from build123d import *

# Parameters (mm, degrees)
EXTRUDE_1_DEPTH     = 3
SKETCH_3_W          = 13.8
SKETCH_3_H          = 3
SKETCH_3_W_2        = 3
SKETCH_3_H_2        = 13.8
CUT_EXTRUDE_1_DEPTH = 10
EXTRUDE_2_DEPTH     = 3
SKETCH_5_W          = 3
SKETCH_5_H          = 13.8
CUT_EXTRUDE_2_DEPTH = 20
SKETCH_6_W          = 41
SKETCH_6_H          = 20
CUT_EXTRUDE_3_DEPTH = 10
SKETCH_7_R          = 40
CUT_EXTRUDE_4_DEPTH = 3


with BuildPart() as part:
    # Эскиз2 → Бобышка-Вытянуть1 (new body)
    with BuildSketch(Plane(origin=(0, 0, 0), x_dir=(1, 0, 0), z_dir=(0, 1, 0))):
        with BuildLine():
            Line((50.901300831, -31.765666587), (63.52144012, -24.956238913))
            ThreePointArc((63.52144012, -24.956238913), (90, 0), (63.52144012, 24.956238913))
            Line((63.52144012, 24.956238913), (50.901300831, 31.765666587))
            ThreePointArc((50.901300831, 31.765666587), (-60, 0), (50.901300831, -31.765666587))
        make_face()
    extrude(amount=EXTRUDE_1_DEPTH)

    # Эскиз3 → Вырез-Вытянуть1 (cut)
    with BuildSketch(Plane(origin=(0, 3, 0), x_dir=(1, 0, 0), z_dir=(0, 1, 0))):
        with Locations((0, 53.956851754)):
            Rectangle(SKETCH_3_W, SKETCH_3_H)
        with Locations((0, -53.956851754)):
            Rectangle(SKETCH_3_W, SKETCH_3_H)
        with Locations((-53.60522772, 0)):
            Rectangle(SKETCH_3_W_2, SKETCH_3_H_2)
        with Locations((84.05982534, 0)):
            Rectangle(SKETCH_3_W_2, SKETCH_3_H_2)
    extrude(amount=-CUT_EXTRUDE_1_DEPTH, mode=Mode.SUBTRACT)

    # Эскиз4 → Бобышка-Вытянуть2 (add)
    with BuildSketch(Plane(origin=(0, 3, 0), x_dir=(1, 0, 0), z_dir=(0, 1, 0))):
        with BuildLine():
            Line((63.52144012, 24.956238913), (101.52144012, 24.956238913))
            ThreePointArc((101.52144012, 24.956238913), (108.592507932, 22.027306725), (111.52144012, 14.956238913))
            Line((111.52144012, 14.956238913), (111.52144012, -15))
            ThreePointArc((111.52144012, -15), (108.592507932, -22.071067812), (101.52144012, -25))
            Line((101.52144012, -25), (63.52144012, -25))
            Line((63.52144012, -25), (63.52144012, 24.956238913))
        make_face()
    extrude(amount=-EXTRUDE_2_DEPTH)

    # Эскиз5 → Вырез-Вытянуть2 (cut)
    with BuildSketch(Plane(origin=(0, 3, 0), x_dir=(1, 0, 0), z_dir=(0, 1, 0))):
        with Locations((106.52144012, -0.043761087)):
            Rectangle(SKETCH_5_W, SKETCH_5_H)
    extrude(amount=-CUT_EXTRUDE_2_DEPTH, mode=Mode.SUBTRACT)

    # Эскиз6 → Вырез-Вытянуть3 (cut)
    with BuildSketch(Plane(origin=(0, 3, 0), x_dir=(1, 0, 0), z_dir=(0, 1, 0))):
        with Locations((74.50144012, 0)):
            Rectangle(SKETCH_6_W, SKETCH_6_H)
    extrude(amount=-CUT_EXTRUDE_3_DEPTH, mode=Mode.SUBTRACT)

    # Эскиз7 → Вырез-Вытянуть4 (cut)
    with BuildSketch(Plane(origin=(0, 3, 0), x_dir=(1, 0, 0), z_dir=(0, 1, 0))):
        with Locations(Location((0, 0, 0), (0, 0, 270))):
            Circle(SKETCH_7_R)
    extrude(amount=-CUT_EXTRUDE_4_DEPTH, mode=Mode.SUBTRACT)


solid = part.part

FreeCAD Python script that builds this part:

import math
import FreeCAD as App
import Part
import Sketcher

V = App.Vector
Q = App.Units.Quantity

doc = App.newDocument("Part")
body = doc.addObject("PartDesign::Body", "Body")

sketch1 = body.newObject("Sketcher::SketchObject", "Sketch")
sketch1.AttachmentSupport = (doc.getObject("XZ_Plane"), [""])
sketch1.MapMode = "FlatFace"
sketch1.addGeometry([
    Part.LineSegment(V(51, 32, 0), V(64, 25, 0)),
    Part.ArcOfCircle(Part.Circle(V(65, 0, 0), V(0, 0, 1), 25), math.radians(-93), math.radians(93)),
    Part.LineSegment(V(64, -25, 0), V(51, -32, 0)),
    Part.ArcOfCircle(Part.Circle(V(0, 0, 0), V(0, 0, 1), 60), math.radians(32), math.radians(328)),
], False)
sketch1.addConstraint([
    Sketcher.Constraint("Coincident", 0, 2, 1, 2),
    Sketcher.Constraint("Coincident", 1, 1, 2, 1),
    Sketcher.Constraint("Coincident", 2, 2, 3, 2),
    Sketcher.Constraint("Coincident", 3, 1, 0, 1),
    Sketcher.Constraint("Coincident", 3, 3, -1, 1),
    Sketcher.Constraint("Symmetric", 0, 2, 1, 1, -1),
    Sketcher.Constraint("Vertical", 2, 2, 3, 1),
    Sketcher.Constraint("Radius", 1, Q("25 mm")),
    Sketcher.Constraint("Radius", 3, Q("60 mm")),
    Sketcher.Constraint("DistanceX", -1, 1, 1, 3, Q("65 mm")),
    Sketcher.Constraint("DistanceX", -1, 1, 2, 2, Q("50.901301 mm")),
    Sketcher.Constraint("Distance", 0, Q("14.340022 mm")),
])
pad1 = body.newObject("PartDesign::Pad", "Pad")
pad1.Profile = sketch1
pad1.Length = 3
pad1.Reversed = True

sketch2 = body.newObject("Sketcher::SketchObject", "Sketch001")
sketch2.AttachmentSupport = (doc.getObject("XZ_Plane"), [""])
sketch2.MapMode = "FlatFace"
sketch2.AttachmentOffset = App.Placement(V(0, 0, -3), App.Rotation())
sketch2.addGeometry([
    Part.LineSegment(V(-6.9, -55.5, 0), V(-6.9, -52.5, 0)),
    Part.LineSegment(V(-6.9, -52.5, 0), V(6.9, -52.5, 0)),
    Part.LineSegment(V(6.9, -52.5, 0), V(6.9, -55.5, 0)),
    Part.LineSegment(V(6.9, -55.5, 0), V(-6.9, -55.5, 0)),
    Part.LineSegment(V(-6.9, 52.5, 0), V(-6.9, 55.5, 0)),
    Part.LineSegment(V(-6.9, 55.5, 0), V(6.9, 55.5, 0)),
    Part.LineSegment(V(6.9, 55.5, 0), V(6.9, 52.5, 0)),
    Part.LineSegment(V(6.9, 52.5, 0), V(-6.9, 52.5, 0)),
    Part.LineSegment(V(-55.1, -6.9, 0), V(-55.1, 6.9, 0)),
    Part.LineSegment(V(-55.1, 6.9, 0), V(-52.1, 6.9, 0)),
    Part.LineSegment(V(-52.1, 6.9, 0), V(-52.1, -6.9, 0)),
    Part.LineSegment(V(-52.1, -6.9, 0), V(-55.1, -6.9, 0)),
    Part.LineSegment(V(82.6, -6.9, 0), V(82.6, 6.9, 0)),
    Part.LineSegment(V(82.6, 6.9, 0), V(85.6, 6.9, 0)),
    Part.LineSegment(V(85.6, 6.9, 0), V(85.6, -6.9, 0)),
    Part.LineSegment(V(85.6, -6.9, 0), V(82.6, -6.9, 0)),
], False)
sketch2.addConstraint([
    Sketcher.Constraint("Coincident", 0, 2, 1, 1),
    Sketcher.Constraint("Coincident", 1, 2, 2, 1),
    Sketcher.Constraint("Coincident", 2, 2, 3, 1),
    Sketcher.Constraint("Coincident", 3, 2, 0, 1),
    Sketcher.Constraint("Coincident", 4, 2, 5, 1),
    Sketcher.Constraint("Coincident", 5, 2, 6, 1),
    Sketcher.Constraint("Coincident", 6, 2, 7, 1),
    Sketcher.Constraint("Coincident", 7, 2, 4, 1),
    Sketcher.Constraint("Coincident", 8, 2, 9, 1),
    Sketcher.Constraint("Coincident", 9, 2, 10, 1),
    Sketcher.Constraint("Coincident", 10, 2, 11, 1),
    Sketcher.Constraint("Coincident", 11, 2, 8, 1),
    Sketcher.Constraint("Coincident", 12, 2, 13, 1),
    Sketcher.Constraint("Coincident", 13, 2, 14, 1),
    Sketcher.Constraint("Coincident", 14, 2, 15, 1),
    Sketcher.Constraint("Coincident", 15, 2, 12, 1),
    Sketcher.Constraint("Vertical", 0),
    Sketcher.Constraint("Horizontal", 1),
    Sketcher.Constraint("Vertical", 2),
    Sketcher.Constraint("Horizontal", 3),
    Sketcher.Constraint("Vertical", 4),
    Sketcher.Constraint("Horizontal", 5),
    Sketcher.Constraint("Vertical", 6),
    Sketcher.Constraint("Horizontal", 7),
    Sketcher.Constraint("Vertical", 8),
    Sketcher.Constraint("Horizontal", 9),
    Sketcher.Constraint("Vertical", 10),
    Sketcher.Constraint("Horizontal", 11),
    Sketcher.Constraint("Vertical", 12),
    Sketcher.Constraint("Horizontal", 13),
    Sketcher.Constraint("Vertical", 14),
    Sketcher.Constraint("Horizontal", 15),
    Sketcher.Constraint("Symmetric", 2, 2, 4, 2, -1, 1),
    Sketcher.Constraint("Symmetric", 0, 2, 6, 2, -1, 1),
    Sketcher.Constraint("Horizontal", 9, 2, 12, 2),
    Sketcher.Constraint("Horizontal", 11, 2, 14, 2),
    Sketcher.Constraint("Vertical", 3, 2, 4, 2),
    Sketcher.Constraint("Equal", 11, 13),
    Sketcher.Constraint("Equal", 15, 0),
    Sketcher.Constraint("Equal", 7, 8),
    Sketcher.Constraint("DistanceX", 9, 1, 9, 2, Q("3 mm")),
    Sketcher.Constraint("DistanceX", 1, 1, 1, 2, Q("13.8 mm")),
    Sketcher.Constraint("DistanceY", -1, 1, 8, 2, Q("6.9 mm")),
    Sketcher.Constraint("DistanceY", 0, 2, -1, 1, Q("52.456852 mm")),
    Sketcher.Constraint("DistanceX", 8, 2, -1, 1, Q("55.105228 mm")),
    Sketcher.Constraint("DistanceX", -1, 1, 12, 2, Q("82.559825 mm")),
])
pocket1 = body.newObject("PartDesign::Pocket", "Pocket")
pocket1.Profile = sketch2
pocket1.Length = 10
pocket1.Reversed = True

sketch3 = body.newObject("Sketcher::SketchObject", "Sketch002")
sketch3.AttachmentSupport = (doc.getObject("XZ_Plane"), [""])
sketch3.MapMode = "FlatFace"
sketch3.AttachmentOffset = App.Placement(V(0, 0, -3), App.Rotation())
sketch3.addGeometry([
    Part.LineSegment(V(102, -25, 0), V(64, -25, 0)),
    Part.LineSegment(V(64, -25, 0), V(64, 25, 0)),
    Part.LineSegment(V(64, 25, 0), V(102, 25, 0)),
    Part.ArcOfCircle(Part.Circle(V(102, 15, 0), V(0, 0, 1), 10), math.radians(0), math.radians(90)),
    Part.LineSegment(V(112, 15, 0), V(112, -15, 0)),
    Part.ArcOfCircle(Part.Circle(V(102, -15, 0), V(0, 0, 1), 10), math.radians(-90), math.radians(0)),
], False)
sketch3.addConstraint([
    Sketcher.Constraint("Coincident", 0, 2, 1, 1),
    Sketcher.Constraint("Coincident", 1, 2, 2, 1),
    Sketcher.Constraint("Tangent", 2, 2, 3, 2),
    Sketcher.Constraint("Tangent", 3, 1, 4, 1),
    Sketcher.Constraint("Tangent", 4, 2, 5, 2),
    Sketcher.Constraint("Tangent", 5, 1, 0, 1),
    Sketcher.Constraint("Horizontal", 0),
    Sketcher.Constraint("Vertical", 1),
    Sketcher.Constraint("Horizontal", 2),
    Sketcher.Constraint("Vertical", 4),
    Sketcher.Constraint("Equal", 3, 5),
    Sketcher.Constraint("Radius", 3, Q("10 mm")),
    Sketcher.Constraint("DistanceX", 0, 2, 0, 1, Q("38 mm")),
    Sketcher.Constraint("DistanceY", -1, 1, 3, 3, Q("15 mm")),
    Sketcher.Constraint("DistanceY", 1, 1, 1, 2, Q("49.956239 mm")),
    Sketcher.Constraint("DistanceX", -1, 1, 3, 3, Q("101.52144 mm")),
])
pad2 = body.newObject("PartDesign::Pad", "Pad001")
pad2.Profile = sketch3
pad2.Length = 3

sketch4 = body.newObject("Sketcher::SketchObject", "Sketch003")
sketch4.AttachmentSupport = (doc.getObject("XZ_Plane"), [""])
sketch4.MapMode = "FlatFace"
sketch4.AttachmentOffset = App.Placement(V(0, 0, -3), App.Rotation())
sketch4.addGeometry([
    Part.LineSegment(V(105, -6.9, 0), V(105, 6.9, 0)),
    Part.LineSegment(V(105, 6.9, 0), V(108, 6.9, 0)),
    Part.LineSegment(V(108, 6.9, 0), V(108, -6.9, 0)),
    Part.LineSegment(V(108, -6.9, 0), V(105, -6.9, 0)),
], False)
sketch4.addConstraint([
    Sketcher.Constraint("Coincident", 0, 2, 1, 1),
    Sketcher.Constraint("Coincident", 1, 2, 2, 1),
    Sketcher.Constraint("Coincident", 2, 2, 3, 1),
    Sketcher.Constraint("Coincident", 3, 2, 0, 1),
    Sketcher.Constraint("Vertical", 0),
    Sketcher.Constraint("Horizontal", 1),
    Sketcher.Constraint("Vertical", 2),
    Sketcher.Constraint("Horizontal", 3),
    Sketcher.Constraint("DistanceX", 1, 1, 1, 2, Q("3 mm")),
    Sketcher.Constraint("DistanceY", 0, 1, 0, 2, Q("13.8 mm")),
    Sketcher.Constraint("DistanceX", -1, 1, 0, 2, Q("105.02144 mm")),
    Sketcher.Constraint("DistanceY", -1, 1, 0, 2, Q("6.943761 mm")),
])
pocket2 = body.newObject("PartDesign::Pocket", "Pocket001")
pocket2.Profile = sketch4
pocket2.Length = 20
pocket2.Reversed = True

sketch5 = body.newObject("Sketcher::SketchObject", "Sketch004")
sketch5.AttachmentSupport = (doc.getObject("XZ_Plane"), [""])
sketch5.MapMode = "FlatFace"
sketch5.AttachmentOffset = App.Placement(V(0, 0, -3), App.Rotation())
sketch5.addGeometry([
    Part.LineSegment(V(54, -10, 0), V(54, 10, 0)),
    Part.LineSegment(V(54, 10, 0), V(95, 10, 0)),
    Part.LineSegment(V(95, 10, 0), V(95, -10, 0)),
    Part.LineSegment(V(95, -10, 0), V(54, -10, 0)),
], False)
sketch5.addConstraint([
    Sketcher.Constraint("Coincident", 0, 2, 1, 1),
    Sketcher.Constraint("Coincident", 1, 2, 2, 1),
    Sketcher.Constraint("Coincident", 2, 2, 3, 1),
    Sketcher.Constraint("Coincident", 3, 2, 0, 1),
    Sketcher.Constraint("Vertical", 0),
    Sketcher.Constraint("Horizontal", 1),
    Sketcher.Constraint("Vertical", 2),
    Sketcher.Constraint("Horizontal", 3),
    Sketcher.Constraint("DistanceX", 1, 1, 1, 2, Q("41 mm")),
    Sketcher.Constraint("DistanceY", 0, 1, 0, 2, Q("20 mm")),
    Sketcher.Constraint("DistanceY", -1, 1, 0, 2, Q("10 mm")),
    Sketcher.Constraint("DistanceX", -1, 1, 0, 2, Q("54.00144 mm")),
])
pocket3 = body.newObject("PartDesign::Pocket", "Pocket002")
pocket3.Profile = sketch5
pocket3.Length = 10
pocket3.Reversed = True

sketch6 = body.newObject("Sketcher::SketchObject", "Sketch005")
sketch6.AttachmentSupport = (doc.getObject("XZ_Plane"), [""])
sketch6.MapMode = "FlatFace"
sketch6.AttachmentOffset = App.Placement(V(0, 0, -3), App.Rotation())
sketch6.addGeometry(Part.Circle(V(0, 0, 0), V(0, 0, 1), 40), False)
sketch6.addConstraint([
    Sketcher.Constraint("Coincident", 0, 3, -1, 1),
    Sketcher.Constraint("Diameter", 0, Q("80 mm")),
])
pocket4 = body.newObject("PartDesign::Pocket", "Pocket003")
pocket4.Profile = sketch6
pocket4.Length = 3
pocket4.Reversed = True

doc.recompute()
